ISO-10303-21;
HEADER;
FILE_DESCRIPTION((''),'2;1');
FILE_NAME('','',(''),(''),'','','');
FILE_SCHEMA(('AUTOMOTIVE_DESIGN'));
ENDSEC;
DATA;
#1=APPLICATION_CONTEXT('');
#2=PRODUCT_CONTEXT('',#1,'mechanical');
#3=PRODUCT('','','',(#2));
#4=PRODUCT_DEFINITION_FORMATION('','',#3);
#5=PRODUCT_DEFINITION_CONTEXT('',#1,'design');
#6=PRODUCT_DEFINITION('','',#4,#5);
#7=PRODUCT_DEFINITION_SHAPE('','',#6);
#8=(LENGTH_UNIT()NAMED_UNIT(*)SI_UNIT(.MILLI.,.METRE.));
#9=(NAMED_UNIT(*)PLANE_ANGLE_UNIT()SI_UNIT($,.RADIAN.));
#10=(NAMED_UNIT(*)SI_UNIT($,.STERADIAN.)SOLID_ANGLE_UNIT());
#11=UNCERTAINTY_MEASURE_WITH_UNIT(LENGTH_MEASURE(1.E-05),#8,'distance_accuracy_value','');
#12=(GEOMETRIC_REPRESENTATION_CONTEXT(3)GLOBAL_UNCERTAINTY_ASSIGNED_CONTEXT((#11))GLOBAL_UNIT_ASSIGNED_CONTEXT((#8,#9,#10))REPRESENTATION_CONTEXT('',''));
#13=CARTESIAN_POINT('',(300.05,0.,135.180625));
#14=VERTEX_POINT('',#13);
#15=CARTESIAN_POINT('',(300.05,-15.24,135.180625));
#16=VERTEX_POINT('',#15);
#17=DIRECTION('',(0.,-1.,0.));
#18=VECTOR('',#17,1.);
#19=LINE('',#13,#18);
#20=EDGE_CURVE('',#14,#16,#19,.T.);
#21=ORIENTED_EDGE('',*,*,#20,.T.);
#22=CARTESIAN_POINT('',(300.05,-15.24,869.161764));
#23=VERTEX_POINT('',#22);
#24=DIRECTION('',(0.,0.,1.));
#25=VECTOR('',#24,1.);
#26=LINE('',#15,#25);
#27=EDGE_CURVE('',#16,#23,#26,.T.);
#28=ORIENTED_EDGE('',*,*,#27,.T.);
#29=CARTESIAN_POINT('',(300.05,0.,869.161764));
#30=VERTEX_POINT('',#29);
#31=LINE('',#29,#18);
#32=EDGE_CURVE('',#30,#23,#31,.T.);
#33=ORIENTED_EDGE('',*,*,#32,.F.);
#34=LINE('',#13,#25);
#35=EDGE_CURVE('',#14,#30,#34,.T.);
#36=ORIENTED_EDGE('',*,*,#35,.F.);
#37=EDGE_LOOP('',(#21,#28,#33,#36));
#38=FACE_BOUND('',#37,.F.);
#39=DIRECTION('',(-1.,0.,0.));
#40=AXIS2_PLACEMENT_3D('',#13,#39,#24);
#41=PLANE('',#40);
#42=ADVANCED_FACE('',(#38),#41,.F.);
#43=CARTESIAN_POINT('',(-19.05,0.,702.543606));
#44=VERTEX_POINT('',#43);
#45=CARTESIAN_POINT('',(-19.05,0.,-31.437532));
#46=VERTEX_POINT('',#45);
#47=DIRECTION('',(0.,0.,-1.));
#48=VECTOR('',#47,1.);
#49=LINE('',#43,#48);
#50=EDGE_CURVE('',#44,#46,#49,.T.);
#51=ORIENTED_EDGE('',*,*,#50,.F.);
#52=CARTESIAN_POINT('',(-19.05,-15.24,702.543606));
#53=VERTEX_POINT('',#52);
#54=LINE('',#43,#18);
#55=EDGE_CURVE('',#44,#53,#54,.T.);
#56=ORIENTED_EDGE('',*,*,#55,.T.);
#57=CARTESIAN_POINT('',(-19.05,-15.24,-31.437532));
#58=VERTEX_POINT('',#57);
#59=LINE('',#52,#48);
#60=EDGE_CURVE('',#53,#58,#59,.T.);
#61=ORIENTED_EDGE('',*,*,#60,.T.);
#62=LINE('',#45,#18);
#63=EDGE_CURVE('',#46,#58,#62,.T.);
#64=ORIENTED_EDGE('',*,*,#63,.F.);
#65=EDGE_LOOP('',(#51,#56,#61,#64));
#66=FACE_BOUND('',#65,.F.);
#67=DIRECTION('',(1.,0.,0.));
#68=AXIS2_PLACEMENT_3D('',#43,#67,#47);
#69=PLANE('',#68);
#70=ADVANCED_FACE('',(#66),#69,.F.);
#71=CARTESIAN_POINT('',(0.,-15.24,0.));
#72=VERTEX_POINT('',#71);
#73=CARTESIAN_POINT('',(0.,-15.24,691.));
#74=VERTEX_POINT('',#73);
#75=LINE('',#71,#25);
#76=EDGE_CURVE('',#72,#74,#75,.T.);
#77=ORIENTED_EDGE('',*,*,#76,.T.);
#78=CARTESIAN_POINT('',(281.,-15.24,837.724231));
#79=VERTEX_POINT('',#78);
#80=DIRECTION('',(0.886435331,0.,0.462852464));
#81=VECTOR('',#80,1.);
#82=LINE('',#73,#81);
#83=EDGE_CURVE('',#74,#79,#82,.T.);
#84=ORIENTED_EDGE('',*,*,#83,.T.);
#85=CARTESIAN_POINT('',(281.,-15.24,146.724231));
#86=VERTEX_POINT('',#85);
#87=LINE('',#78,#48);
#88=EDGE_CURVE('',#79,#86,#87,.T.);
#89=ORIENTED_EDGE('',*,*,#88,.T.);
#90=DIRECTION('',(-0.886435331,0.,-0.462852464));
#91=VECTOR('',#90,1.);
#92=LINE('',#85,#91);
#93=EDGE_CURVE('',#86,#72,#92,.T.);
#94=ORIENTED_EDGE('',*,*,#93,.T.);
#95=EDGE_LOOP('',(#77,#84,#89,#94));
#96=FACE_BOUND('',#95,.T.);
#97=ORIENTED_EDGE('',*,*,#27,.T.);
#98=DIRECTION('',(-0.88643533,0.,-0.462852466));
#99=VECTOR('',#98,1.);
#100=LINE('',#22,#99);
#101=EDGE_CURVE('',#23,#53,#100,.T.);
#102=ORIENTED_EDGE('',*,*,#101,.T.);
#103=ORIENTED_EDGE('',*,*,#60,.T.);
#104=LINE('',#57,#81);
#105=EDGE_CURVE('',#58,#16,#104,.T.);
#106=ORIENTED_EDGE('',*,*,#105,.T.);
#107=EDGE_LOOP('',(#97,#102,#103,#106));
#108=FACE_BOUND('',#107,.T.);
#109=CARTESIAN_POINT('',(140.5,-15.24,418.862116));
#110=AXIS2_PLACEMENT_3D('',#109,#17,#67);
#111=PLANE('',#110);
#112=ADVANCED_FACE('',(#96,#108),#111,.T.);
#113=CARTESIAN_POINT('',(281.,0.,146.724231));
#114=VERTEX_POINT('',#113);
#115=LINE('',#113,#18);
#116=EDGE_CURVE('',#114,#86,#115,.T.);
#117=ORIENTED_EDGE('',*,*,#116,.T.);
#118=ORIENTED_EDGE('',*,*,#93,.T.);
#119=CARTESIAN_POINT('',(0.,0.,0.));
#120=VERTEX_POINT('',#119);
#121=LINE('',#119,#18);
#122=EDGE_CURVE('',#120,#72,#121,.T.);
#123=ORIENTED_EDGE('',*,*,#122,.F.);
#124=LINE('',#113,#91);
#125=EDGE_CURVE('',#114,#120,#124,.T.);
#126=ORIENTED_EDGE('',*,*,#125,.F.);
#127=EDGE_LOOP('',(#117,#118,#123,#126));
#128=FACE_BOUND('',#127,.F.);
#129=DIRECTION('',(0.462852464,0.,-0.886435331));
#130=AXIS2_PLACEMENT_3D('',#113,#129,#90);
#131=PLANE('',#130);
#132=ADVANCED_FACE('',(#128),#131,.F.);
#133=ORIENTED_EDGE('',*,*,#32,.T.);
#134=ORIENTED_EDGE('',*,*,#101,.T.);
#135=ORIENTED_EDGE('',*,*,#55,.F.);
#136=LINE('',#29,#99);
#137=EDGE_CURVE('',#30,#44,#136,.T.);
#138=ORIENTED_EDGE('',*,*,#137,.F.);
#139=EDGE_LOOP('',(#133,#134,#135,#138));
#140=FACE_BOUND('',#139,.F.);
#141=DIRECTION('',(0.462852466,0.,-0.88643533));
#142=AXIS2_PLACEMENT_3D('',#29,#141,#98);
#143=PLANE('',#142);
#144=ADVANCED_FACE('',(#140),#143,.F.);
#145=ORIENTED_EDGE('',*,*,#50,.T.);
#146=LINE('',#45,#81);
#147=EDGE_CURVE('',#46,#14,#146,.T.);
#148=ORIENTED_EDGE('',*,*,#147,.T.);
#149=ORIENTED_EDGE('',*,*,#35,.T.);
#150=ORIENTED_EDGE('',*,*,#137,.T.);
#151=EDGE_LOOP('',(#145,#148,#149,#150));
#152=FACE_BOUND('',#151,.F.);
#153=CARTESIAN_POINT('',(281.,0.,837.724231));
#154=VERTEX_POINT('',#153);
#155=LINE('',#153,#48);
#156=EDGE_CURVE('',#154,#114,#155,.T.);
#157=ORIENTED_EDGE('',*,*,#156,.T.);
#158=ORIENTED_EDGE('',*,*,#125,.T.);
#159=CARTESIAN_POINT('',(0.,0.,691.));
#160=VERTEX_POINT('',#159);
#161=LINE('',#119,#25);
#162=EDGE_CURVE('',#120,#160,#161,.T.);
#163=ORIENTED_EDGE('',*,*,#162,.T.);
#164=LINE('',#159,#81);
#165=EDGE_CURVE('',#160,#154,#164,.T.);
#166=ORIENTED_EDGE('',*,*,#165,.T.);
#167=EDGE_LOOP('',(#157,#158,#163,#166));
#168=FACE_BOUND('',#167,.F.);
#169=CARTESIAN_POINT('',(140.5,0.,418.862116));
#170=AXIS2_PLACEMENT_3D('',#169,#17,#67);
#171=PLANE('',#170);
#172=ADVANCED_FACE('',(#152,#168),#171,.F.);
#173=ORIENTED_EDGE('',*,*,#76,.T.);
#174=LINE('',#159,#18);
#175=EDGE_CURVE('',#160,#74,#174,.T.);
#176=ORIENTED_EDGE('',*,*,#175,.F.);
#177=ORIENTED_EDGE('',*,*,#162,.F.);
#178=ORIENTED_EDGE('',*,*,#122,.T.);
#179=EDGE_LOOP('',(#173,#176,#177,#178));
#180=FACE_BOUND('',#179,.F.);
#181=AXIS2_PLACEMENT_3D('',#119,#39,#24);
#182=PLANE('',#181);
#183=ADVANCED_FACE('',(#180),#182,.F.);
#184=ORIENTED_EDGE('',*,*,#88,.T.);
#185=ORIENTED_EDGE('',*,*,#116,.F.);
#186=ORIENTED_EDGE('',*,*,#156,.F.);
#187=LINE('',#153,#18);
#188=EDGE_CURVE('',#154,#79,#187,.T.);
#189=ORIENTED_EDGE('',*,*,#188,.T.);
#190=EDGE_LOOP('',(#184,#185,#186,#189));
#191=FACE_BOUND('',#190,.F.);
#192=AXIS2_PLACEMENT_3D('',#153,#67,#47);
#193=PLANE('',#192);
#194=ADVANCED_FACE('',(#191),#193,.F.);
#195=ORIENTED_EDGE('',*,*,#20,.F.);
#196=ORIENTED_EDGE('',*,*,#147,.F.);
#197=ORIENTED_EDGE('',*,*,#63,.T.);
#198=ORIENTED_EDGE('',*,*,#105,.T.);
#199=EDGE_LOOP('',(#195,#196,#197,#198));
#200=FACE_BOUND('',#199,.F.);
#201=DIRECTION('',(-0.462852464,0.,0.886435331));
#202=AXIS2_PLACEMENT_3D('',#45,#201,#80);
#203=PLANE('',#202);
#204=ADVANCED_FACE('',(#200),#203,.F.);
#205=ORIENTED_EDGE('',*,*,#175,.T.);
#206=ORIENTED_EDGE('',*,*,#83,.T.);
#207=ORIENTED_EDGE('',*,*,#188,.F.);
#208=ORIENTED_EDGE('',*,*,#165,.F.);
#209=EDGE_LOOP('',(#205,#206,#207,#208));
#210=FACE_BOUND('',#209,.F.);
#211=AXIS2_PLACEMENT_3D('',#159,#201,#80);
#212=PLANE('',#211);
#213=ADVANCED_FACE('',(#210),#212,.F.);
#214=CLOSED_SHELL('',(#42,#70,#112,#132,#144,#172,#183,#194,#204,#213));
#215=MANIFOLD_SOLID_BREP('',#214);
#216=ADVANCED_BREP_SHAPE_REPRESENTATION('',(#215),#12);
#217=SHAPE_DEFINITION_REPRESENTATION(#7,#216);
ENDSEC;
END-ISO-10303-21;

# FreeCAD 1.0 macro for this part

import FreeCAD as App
import Part
import Sketcher
Q = App.Units.Quantity

doc = App.newDocument("Part")
body = doc.addObject("PartDesign::Body", "Body")

sketch1 = body.newObject("Sketcher::SketchObject", "Sketch")
sketch1.AttachmentSupport = (doc.getObject("XZ_Plane"), [""])
sketch1.MapMode = "FlatFace"
sketch1.addGeometry(Part.LineSegment(App.Vector(300, 869, 0), App.Vector(-19, 703, 0)), False)
sketch1.addGeometry(Part.LineSegment(App.Vector(-19, 703, 0), App.Vector(-19, -31, 0)), False)
sketch1.addGeometry(Part.LineSegment(App.Vector(-19, -31, 0), App.Vector(300, 135, 0)), False)
sketch1.addGeometry(Part.LineSegment(App.Vector(300, 135, 0), App.Vector(300, 869, 0)), False)
sketch1.addGeometry(Part.LineSegment(App.Vector(281, 838, 0), App.Vector(281, 147, 0)), False)
sketch1.addGeometry(Part.LineSegment(App.Vector(281, 147, 0), App.Vector(0, 0, 0)), False)
sketch1.addGeometry(Part.LineSegment(App.Vector(0, 0, 0), App.Vector(0, 691, 0)), False)
sketch1.addGeometry(Part.LineSegment(App.Vector(0, 691, 0), App.Vector(281, 838, 0)), False)
sketch1.addConstraint(Sketcher.Constraint("Coincident", 0, 2, 1, 1))
sketch1.addConstraint(Sketcher.Constraint("Coincident", 1, 2, 2, 1))
sketch1.addConstraint(Sketcher.Constraint("Coincident", 2, 2, 3, 1))
sketch1.addConstraint(Sketcher.Constraint("Coincident", 3, 2, 0, 1))
sketch1.addConstraint(Sketcher.Constraint("Coincident", 4, 2, 5, 1))
sketch1.addConstraint(Sketcher.Constraint("Coincident", 5, 2, 6, 1))
sketch1.addConstraint(Sketcher.Constraint("Coincident", 6, 2, 7, 1))
sketch1.addConstraint(Sketcher.Constraint("Coincident", 7, 2, 4, 1))
sketch1.addConstraint(Sketcher.Constraint("Vertical", 1))
sketch1.addConstraint(Sketcher.Constraint("Vertical", 3))
sketch1.addConstraint(Sketcher.Constraint("Vertical", 4))
sketch1.addConstraint(Sketcher.Constraint("Vertical", 6))
sketch1.addConstraint(Sketcher.Constraint("Coincident", 5, 2, -1, 1))
sketch1.addConstraint(Sketcher.Constraint("Parallel", 0, 2))
sketch1.addConstraint(Sketcher.Constraint("Parallel", 2, 5))
sketch1.addConstraint(Sketcher.Constraint("Parallel", 5, 7))
sketch1.addConstraint(Sketcher.Constraint("DistanceY", 4, 2, 4, 1, Q("691 mm")))
sketch1.addConstraint(Sketcher.Constraint("Distance", 5, Q("317 mm")))
sketch1.addConstraint(Sketcher.Constraint("DistanceX", -1, 1, 4, 2, Q("281 mm")))
sketch1.addConstraint(Sketcher.Constraint("DistanceX", 1, 2, 2, 2, Q("319.1 mm")))
sketch1.addConstraint(Sketcher.Constraint("DistanceX", 0, 2, -1, 1, Q("19.05 mm")))
sketch1.addConstraint(Sketcher.Constraint("DistanceY", 1, 2, 1, 1, Q("733.981138 mm")))
sketch1.addConstraint(Sketcher.Constraint("DistanceY", -1, 1, 0, 2, Q("702.543606 mm")))
pad1 = body.newObject("PartDesign::Pad", "Pad")
pad1.Profile = sketch1
pad1.Length = 15.24

doc.recompute()
